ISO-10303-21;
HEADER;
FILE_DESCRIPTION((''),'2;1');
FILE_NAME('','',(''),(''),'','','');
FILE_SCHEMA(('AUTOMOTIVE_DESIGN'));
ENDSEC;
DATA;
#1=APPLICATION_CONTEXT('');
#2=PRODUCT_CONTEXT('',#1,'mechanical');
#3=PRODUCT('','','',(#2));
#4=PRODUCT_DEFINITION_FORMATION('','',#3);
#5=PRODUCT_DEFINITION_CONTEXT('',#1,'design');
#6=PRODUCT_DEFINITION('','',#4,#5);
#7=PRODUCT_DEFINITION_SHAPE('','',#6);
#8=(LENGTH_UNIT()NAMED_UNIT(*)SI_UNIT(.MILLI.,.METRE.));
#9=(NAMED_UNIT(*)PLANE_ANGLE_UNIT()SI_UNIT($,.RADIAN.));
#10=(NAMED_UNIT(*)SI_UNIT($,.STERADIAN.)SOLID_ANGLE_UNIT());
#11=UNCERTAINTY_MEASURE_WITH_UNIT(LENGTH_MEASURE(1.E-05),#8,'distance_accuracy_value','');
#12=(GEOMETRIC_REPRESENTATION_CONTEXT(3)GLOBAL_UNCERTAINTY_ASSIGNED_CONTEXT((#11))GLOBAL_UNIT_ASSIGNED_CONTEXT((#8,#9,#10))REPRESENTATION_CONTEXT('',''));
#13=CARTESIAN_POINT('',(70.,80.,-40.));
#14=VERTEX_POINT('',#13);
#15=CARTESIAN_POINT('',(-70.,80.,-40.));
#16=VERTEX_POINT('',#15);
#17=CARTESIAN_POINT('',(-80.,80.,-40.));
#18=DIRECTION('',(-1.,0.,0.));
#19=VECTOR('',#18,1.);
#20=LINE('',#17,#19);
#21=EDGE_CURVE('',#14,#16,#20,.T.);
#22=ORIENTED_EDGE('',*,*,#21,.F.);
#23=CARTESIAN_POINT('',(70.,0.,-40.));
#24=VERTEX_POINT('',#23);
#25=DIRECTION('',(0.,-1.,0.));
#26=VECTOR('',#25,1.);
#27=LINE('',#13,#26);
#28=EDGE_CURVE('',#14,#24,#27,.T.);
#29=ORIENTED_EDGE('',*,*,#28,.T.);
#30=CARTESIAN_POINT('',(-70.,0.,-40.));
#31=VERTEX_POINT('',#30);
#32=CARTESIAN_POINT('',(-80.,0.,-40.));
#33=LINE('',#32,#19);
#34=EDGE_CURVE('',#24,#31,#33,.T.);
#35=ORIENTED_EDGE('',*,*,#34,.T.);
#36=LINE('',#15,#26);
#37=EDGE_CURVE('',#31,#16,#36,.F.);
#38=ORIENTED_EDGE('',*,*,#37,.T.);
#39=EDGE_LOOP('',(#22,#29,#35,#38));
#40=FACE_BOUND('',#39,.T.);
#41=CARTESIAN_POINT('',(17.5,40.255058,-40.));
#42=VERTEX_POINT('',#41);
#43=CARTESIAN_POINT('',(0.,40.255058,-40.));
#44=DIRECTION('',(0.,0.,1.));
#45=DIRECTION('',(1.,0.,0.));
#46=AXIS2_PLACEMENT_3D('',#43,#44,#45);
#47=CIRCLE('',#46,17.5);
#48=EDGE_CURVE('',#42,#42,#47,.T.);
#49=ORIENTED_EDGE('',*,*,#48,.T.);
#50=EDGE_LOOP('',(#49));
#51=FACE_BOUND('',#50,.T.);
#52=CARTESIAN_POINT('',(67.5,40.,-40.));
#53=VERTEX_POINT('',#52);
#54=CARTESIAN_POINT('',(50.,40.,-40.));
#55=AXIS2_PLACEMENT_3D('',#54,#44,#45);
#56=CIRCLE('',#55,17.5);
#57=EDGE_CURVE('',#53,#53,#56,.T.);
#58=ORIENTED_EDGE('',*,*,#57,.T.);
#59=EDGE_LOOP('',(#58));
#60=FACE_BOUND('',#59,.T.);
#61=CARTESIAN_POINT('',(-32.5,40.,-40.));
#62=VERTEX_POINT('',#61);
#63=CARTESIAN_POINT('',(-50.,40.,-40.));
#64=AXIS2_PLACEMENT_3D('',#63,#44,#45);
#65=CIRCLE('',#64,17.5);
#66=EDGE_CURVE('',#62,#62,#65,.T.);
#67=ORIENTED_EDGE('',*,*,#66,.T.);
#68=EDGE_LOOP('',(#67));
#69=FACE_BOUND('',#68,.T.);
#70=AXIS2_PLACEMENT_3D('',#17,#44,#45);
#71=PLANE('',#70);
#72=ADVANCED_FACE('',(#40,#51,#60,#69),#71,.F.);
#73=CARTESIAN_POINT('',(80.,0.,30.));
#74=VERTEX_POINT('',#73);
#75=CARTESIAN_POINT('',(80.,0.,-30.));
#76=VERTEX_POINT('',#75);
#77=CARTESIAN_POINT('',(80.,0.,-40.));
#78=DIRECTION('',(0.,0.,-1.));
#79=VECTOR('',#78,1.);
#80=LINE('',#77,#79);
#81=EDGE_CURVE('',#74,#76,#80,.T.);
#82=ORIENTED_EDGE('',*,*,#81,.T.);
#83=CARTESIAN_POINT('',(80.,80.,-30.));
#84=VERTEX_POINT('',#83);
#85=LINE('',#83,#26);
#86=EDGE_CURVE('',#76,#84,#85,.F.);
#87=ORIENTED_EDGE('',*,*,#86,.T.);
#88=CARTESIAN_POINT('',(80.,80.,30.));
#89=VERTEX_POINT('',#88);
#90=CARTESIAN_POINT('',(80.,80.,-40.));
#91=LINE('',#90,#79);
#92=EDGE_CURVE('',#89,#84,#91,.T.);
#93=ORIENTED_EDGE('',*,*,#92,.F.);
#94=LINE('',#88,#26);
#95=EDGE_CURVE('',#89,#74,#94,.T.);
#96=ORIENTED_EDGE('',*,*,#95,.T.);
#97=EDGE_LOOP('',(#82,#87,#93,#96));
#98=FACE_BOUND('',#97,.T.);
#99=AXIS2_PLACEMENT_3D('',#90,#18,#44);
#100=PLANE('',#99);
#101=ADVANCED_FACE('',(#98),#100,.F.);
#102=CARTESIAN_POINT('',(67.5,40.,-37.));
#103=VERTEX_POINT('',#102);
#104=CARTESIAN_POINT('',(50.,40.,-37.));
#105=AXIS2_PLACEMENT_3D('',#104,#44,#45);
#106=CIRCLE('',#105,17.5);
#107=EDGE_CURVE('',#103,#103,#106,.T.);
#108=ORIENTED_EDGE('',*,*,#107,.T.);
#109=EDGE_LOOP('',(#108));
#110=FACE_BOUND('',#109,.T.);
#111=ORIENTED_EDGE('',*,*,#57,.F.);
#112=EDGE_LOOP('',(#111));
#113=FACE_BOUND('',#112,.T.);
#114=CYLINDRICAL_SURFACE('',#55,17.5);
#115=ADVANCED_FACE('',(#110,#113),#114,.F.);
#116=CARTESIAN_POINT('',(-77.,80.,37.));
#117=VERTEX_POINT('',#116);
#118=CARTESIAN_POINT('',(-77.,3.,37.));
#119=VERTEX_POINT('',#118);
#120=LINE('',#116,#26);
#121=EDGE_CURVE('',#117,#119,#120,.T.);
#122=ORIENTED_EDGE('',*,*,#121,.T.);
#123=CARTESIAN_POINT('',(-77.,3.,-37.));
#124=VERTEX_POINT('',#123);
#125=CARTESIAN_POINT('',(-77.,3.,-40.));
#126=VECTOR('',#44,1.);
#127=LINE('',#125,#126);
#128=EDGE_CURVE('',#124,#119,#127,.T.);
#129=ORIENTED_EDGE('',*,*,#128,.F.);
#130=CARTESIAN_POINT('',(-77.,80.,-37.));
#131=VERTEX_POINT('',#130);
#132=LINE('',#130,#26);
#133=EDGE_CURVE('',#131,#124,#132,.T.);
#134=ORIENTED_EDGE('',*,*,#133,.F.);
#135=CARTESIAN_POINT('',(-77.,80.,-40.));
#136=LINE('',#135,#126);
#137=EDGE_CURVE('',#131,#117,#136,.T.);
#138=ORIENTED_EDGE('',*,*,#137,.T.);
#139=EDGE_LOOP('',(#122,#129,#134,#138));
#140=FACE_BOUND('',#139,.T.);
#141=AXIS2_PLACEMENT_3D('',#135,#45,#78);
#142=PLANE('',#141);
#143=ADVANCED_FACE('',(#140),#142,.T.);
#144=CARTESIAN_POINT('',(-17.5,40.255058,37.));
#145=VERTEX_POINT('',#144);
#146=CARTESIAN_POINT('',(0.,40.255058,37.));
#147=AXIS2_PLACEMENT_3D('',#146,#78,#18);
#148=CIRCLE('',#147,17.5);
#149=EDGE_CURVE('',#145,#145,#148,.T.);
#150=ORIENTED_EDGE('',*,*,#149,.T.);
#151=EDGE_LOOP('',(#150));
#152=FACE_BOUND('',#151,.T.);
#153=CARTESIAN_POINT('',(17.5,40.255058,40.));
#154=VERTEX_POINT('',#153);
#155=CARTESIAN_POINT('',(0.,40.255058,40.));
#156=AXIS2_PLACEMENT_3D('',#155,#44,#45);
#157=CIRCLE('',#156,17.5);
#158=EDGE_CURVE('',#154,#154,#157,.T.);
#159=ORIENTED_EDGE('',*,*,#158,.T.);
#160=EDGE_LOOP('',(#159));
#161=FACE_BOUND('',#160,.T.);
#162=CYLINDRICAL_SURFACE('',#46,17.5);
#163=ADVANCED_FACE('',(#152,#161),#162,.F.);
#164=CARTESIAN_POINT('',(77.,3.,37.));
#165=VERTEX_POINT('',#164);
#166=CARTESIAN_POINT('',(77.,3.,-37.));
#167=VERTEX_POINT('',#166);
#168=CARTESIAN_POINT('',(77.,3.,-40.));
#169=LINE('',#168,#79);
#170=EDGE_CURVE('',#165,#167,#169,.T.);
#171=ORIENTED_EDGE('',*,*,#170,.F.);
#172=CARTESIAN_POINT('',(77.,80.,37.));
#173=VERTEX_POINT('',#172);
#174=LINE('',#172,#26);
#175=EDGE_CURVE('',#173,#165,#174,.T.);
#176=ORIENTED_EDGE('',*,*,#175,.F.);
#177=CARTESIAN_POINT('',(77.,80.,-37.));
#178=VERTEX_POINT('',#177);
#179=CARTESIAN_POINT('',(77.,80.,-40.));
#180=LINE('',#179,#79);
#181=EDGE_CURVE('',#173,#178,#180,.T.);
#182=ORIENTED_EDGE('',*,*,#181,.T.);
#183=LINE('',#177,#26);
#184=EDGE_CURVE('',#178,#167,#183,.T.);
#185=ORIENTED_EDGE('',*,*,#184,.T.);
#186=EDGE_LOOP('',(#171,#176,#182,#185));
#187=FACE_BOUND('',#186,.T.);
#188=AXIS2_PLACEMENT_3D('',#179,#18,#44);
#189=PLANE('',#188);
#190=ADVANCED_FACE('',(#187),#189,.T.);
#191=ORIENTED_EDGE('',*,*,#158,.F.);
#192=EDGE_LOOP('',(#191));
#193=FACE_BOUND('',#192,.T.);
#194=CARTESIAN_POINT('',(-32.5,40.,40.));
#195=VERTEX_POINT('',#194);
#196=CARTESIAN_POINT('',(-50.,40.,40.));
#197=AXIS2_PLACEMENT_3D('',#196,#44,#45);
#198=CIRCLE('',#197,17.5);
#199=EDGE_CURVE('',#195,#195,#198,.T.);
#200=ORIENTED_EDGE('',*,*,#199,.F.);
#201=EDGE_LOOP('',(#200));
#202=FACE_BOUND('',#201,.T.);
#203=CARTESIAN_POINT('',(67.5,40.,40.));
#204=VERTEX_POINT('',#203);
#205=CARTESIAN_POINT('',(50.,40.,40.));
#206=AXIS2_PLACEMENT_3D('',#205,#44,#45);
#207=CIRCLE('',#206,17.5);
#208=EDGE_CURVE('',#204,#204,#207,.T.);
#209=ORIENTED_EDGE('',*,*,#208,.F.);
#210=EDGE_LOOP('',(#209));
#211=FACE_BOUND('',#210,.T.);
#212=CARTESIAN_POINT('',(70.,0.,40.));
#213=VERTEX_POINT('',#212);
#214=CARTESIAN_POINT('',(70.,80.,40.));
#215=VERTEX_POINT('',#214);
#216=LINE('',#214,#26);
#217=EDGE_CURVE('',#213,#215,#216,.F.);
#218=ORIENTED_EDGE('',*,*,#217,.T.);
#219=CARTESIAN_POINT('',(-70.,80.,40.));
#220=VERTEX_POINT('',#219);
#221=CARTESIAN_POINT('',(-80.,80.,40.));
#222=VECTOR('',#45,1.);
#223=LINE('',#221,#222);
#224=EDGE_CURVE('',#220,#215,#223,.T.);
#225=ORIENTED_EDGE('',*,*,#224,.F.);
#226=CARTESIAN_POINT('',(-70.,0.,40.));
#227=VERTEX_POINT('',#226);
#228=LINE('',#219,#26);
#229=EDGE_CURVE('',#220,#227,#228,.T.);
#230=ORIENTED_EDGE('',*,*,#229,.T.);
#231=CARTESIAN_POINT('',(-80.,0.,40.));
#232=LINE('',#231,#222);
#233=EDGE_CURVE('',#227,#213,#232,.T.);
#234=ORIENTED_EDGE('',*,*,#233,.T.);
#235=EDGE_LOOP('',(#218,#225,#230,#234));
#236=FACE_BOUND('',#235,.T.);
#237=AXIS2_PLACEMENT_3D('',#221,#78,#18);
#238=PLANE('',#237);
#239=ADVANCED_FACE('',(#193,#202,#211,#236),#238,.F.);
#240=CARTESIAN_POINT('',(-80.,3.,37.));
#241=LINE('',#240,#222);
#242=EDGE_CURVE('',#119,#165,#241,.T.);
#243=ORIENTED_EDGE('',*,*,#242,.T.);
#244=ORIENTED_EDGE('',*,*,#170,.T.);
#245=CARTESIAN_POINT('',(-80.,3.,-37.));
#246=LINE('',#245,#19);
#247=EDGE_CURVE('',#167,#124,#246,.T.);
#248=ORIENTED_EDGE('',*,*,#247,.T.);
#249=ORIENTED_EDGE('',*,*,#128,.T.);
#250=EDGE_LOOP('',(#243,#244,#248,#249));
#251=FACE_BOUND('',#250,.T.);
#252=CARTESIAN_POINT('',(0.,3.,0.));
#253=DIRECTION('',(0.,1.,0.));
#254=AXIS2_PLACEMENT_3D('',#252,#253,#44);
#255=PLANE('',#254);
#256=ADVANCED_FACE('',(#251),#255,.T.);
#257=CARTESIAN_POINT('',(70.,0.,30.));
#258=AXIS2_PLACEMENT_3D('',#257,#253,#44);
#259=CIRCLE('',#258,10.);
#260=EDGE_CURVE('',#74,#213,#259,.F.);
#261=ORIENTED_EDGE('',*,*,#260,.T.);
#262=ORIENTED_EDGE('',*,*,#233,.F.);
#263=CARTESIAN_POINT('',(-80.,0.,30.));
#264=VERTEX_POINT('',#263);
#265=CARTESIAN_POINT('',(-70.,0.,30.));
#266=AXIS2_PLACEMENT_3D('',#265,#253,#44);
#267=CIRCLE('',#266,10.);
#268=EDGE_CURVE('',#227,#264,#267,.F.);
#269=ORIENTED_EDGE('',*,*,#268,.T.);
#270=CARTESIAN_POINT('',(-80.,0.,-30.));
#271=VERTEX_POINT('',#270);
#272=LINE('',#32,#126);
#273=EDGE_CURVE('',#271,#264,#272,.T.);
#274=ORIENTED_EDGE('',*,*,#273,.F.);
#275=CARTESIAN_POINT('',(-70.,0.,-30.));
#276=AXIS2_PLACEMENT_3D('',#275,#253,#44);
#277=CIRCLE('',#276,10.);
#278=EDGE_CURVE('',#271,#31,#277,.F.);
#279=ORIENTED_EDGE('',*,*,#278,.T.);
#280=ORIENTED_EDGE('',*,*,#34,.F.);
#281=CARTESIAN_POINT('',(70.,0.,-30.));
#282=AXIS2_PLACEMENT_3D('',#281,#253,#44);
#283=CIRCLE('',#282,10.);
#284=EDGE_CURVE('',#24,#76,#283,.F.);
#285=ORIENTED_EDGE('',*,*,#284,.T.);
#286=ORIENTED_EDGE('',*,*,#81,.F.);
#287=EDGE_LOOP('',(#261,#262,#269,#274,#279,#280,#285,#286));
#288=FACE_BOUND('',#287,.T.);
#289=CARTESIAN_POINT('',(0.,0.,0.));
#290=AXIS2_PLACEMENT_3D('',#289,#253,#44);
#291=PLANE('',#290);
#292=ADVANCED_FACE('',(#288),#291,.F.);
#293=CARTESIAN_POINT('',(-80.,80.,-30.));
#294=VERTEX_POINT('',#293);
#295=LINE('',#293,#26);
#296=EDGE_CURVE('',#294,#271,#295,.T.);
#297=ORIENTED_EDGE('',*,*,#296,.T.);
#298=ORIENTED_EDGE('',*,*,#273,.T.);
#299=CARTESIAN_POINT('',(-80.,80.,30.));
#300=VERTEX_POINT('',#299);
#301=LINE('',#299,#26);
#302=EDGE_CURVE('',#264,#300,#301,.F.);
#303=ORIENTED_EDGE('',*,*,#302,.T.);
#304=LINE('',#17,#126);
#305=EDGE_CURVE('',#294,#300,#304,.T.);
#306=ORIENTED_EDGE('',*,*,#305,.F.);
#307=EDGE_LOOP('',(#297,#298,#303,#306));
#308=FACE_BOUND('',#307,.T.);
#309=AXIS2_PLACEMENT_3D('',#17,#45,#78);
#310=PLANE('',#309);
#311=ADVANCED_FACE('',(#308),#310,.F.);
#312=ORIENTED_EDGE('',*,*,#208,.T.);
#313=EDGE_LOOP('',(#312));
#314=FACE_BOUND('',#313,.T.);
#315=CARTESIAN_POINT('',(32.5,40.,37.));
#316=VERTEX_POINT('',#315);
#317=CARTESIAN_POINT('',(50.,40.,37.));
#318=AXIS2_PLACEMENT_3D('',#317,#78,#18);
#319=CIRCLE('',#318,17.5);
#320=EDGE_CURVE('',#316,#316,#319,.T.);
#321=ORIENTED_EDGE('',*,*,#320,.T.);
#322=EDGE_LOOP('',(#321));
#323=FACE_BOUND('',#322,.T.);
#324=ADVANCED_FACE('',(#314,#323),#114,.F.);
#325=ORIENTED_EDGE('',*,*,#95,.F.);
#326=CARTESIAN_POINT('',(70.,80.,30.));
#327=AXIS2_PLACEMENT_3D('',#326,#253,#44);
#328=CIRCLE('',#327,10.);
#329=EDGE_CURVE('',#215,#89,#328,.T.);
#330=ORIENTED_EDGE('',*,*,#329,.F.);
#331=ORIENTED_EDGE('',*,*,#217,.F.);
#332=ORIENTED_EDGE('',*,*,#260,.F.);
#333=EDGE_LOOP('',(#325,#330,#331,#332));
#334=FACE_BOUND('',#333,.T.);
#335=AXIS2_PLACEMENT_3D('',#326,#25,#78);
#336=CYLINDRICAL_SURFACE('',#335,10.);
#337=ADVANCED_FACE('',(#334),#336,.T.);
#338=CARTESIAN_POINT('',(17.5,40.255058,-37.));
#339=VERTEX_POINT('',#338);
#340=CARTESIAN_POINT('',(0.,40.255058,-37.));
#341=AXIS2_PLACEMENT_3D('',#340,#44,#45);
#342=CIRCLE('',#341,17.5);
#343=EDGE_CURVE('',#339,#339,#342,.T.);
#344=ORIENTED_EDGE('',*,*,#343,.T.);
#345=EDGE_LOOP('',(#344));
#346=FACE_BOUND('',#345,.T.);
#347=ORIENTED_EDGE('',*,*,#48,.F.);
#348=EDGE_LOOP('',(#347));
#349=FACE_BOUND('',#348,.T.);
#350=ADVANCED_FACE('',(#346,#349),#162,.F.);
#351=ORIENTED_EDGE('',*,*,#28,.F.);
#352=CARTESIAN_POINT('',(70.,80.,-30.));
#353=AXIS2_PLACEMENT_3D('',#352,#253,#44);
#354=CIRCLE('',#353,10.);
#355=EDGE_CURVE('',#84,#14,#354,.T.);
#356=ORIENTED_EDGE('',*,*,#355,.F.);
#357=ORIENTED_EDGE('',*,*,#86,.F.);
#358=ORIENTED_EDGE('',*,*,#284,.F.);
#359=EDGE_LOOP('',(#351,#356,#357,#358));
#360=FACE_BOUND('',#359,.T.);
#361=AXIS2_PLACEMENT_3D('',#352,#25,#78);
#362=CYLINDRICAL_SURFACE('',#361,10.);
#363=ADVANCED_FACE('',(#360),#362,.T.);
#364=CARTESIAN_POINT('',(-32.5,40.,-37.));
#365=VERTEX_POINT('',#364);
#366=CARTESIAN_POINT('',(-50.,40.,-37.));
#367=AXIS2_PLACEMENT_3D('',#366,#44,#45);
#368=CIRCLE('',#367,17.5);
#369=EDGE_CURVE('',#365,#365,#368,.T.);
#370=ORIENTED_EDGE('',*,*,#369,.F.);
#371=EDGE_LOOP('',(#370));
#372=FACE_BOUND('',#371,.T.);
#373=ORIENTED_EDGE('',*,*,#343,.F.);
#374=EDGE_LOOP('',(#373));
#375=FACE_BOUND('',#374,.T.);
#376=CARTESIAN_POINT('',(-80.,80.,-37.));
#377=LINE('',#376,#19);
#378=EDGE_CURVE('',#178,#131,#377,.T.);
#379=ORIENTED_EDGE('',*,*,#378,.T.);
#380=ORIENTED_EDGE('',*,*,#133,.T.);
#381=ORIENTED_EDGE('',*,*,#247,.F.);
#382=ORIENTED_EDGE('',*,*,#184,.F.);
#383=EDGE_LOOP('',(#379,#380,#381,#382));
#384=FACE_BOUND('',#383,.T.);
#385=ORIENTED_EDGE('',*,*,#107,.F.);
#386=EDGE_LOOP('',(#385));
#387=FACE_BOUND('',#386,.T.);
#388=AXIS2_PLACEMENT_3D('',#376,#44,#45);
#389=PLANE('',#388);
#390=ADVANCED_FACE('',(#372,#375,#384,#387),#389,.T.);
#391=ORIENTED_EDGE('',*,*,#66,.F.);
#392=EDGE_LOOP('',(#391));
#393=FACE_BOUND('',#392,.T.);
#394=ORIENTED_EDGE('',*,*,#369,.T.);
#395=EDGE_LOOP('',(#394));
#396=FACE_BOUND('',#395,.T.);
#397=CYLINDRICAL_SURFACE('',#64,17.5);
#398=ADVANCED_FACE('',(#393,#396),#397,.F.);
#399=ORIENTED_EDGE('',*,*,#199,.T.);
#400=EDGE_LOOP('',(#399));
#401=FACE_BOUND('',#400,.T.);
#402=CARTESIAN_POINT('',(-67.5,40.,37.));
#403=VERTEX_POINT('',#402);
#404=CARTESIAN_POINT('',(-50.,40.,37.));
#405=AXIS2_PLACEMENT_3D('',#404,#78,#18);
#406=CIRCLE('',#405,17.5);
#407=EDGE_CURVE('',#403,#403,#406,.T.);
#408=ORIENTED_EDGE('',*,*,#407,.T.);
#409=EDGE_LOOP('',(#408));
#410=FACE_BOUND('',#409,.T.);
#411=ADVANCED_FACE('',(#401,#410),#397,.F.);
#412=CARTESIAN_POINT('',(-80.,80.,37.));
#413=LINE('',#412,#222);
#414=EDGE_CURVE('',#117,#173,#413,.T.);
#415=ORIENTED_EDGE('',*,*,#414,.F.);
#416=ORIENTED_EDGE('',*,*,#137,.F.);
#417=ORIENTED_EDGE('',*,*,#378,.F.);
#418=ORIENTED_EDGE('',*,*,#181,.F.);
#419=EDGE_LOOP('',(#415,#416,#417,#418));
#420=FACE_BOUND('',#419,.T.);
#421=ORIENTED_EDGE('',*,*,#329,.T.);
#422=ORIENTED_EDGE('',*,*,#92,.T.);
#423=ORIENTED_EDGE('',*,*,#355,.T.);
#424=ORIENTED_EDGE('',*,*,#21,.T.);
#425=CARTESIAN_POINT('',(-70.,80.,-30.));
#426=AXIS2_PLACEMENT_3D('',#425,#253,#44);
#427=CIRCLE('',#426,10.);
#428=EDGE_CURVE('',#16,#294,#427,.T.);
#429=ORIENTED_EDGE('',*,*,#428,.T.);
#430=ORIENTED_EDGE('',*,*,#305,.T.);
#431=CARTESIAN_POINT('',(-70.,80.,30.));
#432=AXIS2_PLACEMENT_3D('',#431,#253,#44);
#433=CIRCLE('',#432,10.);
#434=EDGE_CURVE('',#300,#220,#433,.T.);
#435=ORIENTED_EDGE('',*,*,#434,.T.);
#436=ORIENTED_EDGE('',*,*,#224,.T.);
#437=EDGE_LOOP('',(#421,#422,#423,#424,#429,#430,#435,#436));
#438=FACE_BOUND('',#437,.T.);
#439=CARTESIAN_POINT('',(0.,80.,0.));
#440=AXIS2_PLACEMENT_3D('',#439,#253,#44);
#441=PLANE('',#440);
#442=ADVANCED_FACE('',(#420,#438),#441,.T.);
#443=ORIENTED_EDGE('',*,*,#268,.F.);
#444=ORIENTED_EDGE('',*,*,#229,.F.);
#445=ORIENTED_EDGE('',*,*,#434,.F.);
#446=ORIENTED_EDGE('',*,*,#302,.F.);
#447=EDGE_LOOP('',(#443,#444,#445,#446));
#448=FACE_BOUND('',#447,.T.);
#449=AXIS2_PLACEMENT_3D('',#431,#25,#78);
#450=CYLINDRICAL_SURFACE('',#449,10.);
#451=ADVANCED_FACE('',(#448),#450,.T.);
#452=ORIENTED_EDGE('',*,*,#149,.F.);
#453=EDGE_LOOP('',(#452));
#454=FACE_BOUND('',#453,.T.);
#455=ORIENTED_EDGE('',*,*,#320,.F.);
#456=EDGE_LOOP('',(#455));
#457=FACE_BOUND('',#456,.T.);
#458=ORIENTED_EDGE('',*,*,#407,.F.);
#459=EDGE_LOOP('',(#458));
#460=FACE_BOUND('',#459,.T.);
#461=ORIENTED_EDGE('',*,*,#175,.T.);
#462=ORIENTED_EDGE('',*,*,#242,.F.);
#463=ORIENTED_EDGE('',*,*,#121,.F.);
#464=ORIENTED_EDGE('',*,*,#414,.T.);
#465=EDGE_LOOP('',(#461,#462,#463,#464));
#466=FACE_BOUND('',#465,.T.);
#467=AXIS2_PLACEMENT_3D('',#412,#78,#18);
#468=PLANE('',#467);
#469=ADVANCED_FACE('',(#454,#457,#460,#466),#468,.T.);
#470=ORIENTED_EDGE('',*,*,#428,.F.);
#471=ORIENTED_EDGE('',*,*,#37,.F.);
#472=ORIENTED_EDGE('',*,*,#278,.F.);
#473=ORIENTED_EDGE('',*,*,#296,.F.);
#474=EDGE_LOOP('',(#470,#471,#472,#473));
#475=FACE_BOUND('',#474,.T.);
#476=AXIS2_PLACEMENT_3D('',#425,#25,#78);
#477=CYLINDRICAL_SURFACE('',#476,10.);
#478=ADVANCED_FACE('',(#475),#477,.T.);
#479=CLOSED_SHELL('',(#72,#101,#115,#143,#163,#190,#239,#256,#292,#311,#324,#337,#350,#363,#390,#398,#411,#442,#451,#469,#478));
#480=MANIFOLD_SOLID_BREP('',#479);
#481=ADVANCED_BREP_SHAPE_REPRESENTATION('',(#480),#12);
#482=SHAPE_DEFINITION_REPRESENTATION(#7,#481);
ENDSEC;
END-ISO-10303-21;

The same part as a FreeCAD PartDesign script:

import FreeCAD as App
import Part
import Sketcher

V = App.Vector


def edges_at(feature, points):
    """Names of the edges that pass closest to the given points."""
    edges = feature.Shape.Edges
    near = lambda p: min(range(len(edges)), key=lambda i: edges[i].distToShape(Part.Vertex(*p))[0])
    return sorted({f"Edge{near(p) + 1}" for p in points})


def faces_at(feature, points):
    """Names of the faces that lie closest to the given points."""
    faces = feature.Shape.Faces
    near = lambda p: min(range(len(faces)), key=lambda i: faces[i].distToShape(Part.Vertex(*p))[0])
    return sorted({f"Face{near(p) + 1}" for p in points})


def add_polygon(sketch, points):
    """Adds a closed chain of lines whose ends are joined by coincident constraints."""
    first, n = sketch.GeometryCount, len(points)
    for a, b in zip(points, points[1:] + points[:1]):
        sketch.addGeometry(Part.LineSegment(App.Vector(*a, 0), App.Vector(*b, 0)), False)
    for i in range(n):
        sketch.addConstraint(Sketcher.Constraint("Coincident", first + i, 2, first + (i + 1) % n, 1))

doc = App.newDocument("Part")
body = doc.addObject("PartDesign::Body", "Body")

# Sketch on XZ plane
sketch1 = doc.addObject("Sketcher::SketchObject", "Sketch")
body.addObject(sketch1)
sketch1.AttachmentSupport = (doc.XZ_Plane, [""])
sketch1.MapMode = "FlatFace"
add_polygon(sketch1, [(-80, -40), (-80, 40), (80, 40), (80, -40)])  # lines 0-3
sketch1.addConstraint([
    Sketcher.Constraint("Vertical", 0),
    Sketcher.Constraint("Horizontal", 1),
    Sketcher.Constraint("Vertical", 2),
    Sketcher.Constraint("Horizontal", 3),
    Sketcher.Constraint("Symmetric", 0, 2, 2, 2, -1, 1),
    Sketcher.Constraint("DistanceX", 1, 1, 1, 2, 160.0),
    Sketcher.Constraint("DistanceY", 0, 1, 0, 2, 80.0),
])
pad1 = doc.addObject("PartDesign::Pad", "Pad")
body.addObject(pad1)
pad1.Profile = sketch1
pad1.Length = 80
pad1.Reversed = True
doc.recompute()

thickness = doc.addObject("PartDesign::Thickness", "Thickness")
body.addObject(thickness)
thickness.Base = (pad1, faces_at(pad1, [(0, 80, 0)]))
thickness.Value = 3
thickness.Reversed = True
thickness.Join = "Intersection"

# Sketch on XY plane
sketch2 = doc.addObject("Sketcher::SketchObject", "Sketch001")
body.addObject(sketch2)
sketch2.AttachmentSupport = (doc.XY_Plane, [""])
sketch2.MapMode = "FlatFace"
sketch2.AttachmentOffset = App.Placement(V(0, 0, 40), App.Rotation())
sketch2.addGeometry([
    Part.Circle(V(-50, 40, 0), V(0, 0, 1), 18),
    Part.Circle(V(0, 40, 0), V(0, 0, 1), 18),
    Part.Circle(V(50, 40, 0), V(0, 0, 1), 18),
], False)
sketch2.addConstraint([
    Sketcher.Constraint("Equal", 0, 1),
    Sketcher.Constraint("Equal", 1, 2),
    Sketcher.Constraint("Symmetric", 0, 3, 2, 3, -2),
    Sketcher.Constraint("PointOnObject", 1, 3, -2),
    Sketcher.Constraint("Diameter", 0, 35.0),
    Sketcher.Constraint("DistanceX", 0, 3, -1, 1, 50.0),
    Sketcher.Constraint("DistanceY", -1, 1, 0, 3, 40.0),
    Sketcher.Constraint("DistanceY", -1, 1, 1, 3, 40.255058),
])
pocket1 = doc.addObject("PartDesign::Pocket", "Pocket")
body.addObject(pocket1)
pocket1.Profile = sketch2
pocket1.Length = 80
doc.recompute()

fillet = doc.addObject("PartDesign::Fillet", "Fillet")
body.addObject(fillet)
fillet.Base = (pocket1, edges_at(pocket1, [
    (80, 40, 40),
    (-80, 40, 40),
    (-80, 40, -40),
    (80, 40, -40),
]))
fillet.Radius = 10

doc.recompute()
